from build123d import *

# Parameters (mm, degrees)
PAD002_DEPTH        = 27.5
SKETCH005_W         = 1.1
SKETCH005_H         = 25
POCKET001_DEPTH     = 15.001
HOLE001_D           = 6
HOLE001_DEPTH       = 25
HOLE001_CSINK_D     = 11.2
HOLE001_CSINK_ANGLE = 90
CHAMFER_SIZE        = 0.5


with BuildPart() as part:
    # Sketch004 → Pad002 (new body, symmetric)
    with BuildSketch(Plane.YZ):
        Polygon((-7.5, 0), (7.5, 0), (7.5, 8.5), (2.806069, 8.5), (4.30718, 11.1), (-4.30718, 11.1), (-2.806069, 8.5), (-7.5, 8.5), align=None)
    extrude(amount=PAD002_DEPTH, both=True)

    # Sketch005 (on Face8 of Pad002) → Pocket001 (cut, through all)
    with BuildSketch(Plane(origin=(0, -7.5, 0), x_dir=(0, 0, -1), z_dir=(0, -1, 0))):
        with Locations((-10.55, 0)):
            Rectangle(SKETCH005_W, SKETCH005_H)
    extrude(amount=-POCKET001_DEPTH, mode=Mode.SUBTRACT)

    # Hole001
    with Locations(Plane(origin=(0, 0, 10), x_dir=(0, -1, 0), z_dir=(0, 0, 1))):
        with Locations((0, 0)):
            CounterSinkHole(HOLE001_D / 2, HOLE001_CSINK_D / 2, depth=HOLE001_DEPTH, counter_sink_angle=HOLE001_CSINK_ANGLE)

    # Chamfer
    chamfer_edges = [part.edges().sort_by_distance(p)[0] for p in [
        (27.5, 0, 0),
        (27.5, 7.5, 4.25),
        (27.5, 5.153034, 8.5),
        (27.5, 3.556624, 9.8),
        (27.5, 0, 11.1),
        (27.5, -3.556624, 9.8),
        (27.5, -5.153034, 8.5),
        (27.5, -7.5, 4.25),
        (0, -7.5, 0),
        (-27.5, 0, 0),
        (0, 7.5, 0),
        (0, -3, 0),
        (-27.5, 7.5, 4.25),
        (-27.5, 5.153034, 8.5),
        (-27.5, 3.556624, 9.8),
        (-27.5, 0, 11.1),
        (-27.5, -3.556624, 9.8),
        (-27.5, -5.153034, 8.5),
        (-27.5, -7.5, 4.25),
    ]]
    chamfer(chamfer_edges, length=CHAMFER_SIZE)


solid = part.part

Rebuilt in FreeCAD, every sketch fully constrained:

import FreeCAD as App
import Part
import Sketcher
Q = App.Units.Quantity


def edges_at(feature, points):
    """Names of the edges that pass closest to the given points."""
    edges = feature.Shape.Edges
    near = lambda p: min(range(len(edges)), key=lambda i: edges[i].distToShape(Part.Vertex(*p))[0])
    return sorted({f"Edge{near(p) + 1}" for p in points})

doc = App.newDocument("Part")
body = doc.addObject("PartDesign::Body", "Body")

# Sketch on YZ plane
sketch1 = doc.addObject("Sketcher::SketchObject", "Sketch")
body.addObject(sketch1)
sketch1.AttachmentSupport = (doc.YZ_Plane, [""])
sketch1.MapMode = "FlatFace"
sketch1.addGeometry([
    Part.LineSegment(App.Vector(-7.5, 0, 0), App.Vector(7.5, 0, 0)),  # 0
    Part.LineSegment(App.Vector(7.5, 0, 0), App.Vector(7.5, 8.5, 0)),  # 1
    Part.LineSegment(App.Vector(7.5, 8.5, 0), App.Vector(2.8, 8.5, 0)),  # 2
    Part.LineSegment(App.Vector(2.8, 8.5, 0), App.Vector(4.3, 11.1, 0)),  # 3
    Part.LineSegment(App.Vector(4.3, 11.1, 0), App.Vector(-4.3, 11.1, 0)),  # 4
    Part.LineSegment(App.Vector(-4.3, 11.1, 0), App.Vector(-2.8, 8.5, 0)),  # 5
    Part.LineSegment(App.Vector(-2.8, 8.5, 0), App.Vector(-7.5, 8.5, 0)),  # 6
    Part.LineSegment(App.Vector(-7.5, 8.5, 0), App.Vector(-7.5, 0, 0)),  # 7
], False)
sketch1.addConstraint([
    Sketcher.Constraint("Coincident", 0, 2, 1, 1),
    Sketcher.Constraint("Coincident", 1, 2, 2, 1),
    Sketcher.Constraint("Coincident", 2, 2, 3, 1),
    Sketcher.Constraint("Coincident", 3, 2, 4, 1),
    Sketcher.Constraint("Coincident", 4, 2, 5, 1),
    Sketcher.Constraint("Coincident", 5, 2, 6, 1),
    Sketcher.Constraint("Coincident", 6, 2, 7, 1),
    Sketcher.Constraint("Coincident", 7, 2, 0, 1),
    Sketcher.Constraint("Horizontal", 0),
    Sketcher.Constraint("Vertical", 1),
    Sketcher.Constraint("Horizontal", 2),
    Sketcher.Constraint("Horizontal", 4),
    Sketcher.Constraint("Horizontal", 6),
    Sketcher.Constraint("Vertical", 7),
    Sketcher.Constraint("Symmetric", 0, 2, 7, 2, -1, 1),
    Sketcher.Constraint("Symmetric", 2, 2, 5, 2, -2),
    Sketcher.Constraint("Equal", 3, 5),
    Sketcher.Constraint("DistanceX", 0, 1, 0, 2, Q("15 mm")),
    Sketcher.Constraint("Angle", 3, Q("59.999995 deg")),
    Sketcher.Constraint("DistanceY", 1, 1, 1, 2, Q("8.5 mm")),
    Sketcher.Constraint("DistanceY", -1, 1, 3, 2, Q("11.1 mm")),
    Sketcher.Constraint("DistanceX", 2, 2, 2, 1, Q("4.693931 mm")),
])
pad1 = doc.addObject("PartDesign::Pad", "Pad")
body.addObject(pad1)
pad1.Profile = sketch1
pad1.Length = 55
pad1.Midplane = True

# Sketch on XZ plane
sketch2 = doc.addObject("Sketcher::SketchObject", "Sketch001")
body.addObject(sketch2)
sketch2.AttachmentSupport = (doc.XZ_Plane, [""])
sketch2.MapMode = "FlatFace"
sketch2.AttachmentOffset = App.Placement(App.Vector(0, 0, 7.5), App.Rotation())
sketch2.addGeometry([
    Part.LineSegment(App.Vector(12.5, 11.1, 0), App.Vector(-12.5, 11.1, 0)),
    Part.LineSegment(App.Vector(-12.5, 11.1, 0), App.Vector(-12.5, 10, 0)),
    Part.LineSegment(App.Vector(-12.5, 10, 0), App.Vector(12.5, 10, 0)),
    Part.LineSegment(App.Vector(12.5, 10, 0), App.Vector(12.5, 11.1, 0)),
], False)
sketch2.addConstraint([
    Sketcher.Constraint("Coincident", 0, 2, 1, 1),
    Sketcher.Constraint("Coincident", 1, 2, 2, 1),
    Sketcher.Constraint("Coincident", 2, 2, 3, 1),
    Sketcher.Constraint("Coincident", 3, 2, 0, 1),
    Sketcher.Constraint("Horizontal", 0),
    Sketcher.Constraint("Vertical", 1),
    Sketcher.Constraint("Horizontal", 2),
    Sketcher.Constraint("Vertical", 3),
    Sketcher.Constraint("DistanceX", 0, 2, 0, 1, Q("25 mm")),
    Sketcher.Constraint("DistanceY", 1, 2, 1, 1, Q("1.1 mm")),
    Sketcher.Constraint("DistanceY", -1, 1, 1, 2, Q("10 mm")),
    Sketcher.Constraint("DistanceX", 0, 2, -1, 1, Q("12.5 mm")),
])
pocket1 = doc.addObject("PartDesign::Pocket", "Pocket")
body.addObject(pocket1)
pocket1.Profile = sketch2
pocket1.Type = "ThroughAll"

# Sketch on XY plane
sketch3 = doc.addObject("Sketcher::SketchObject", "Sketch002")
body.addObject(sketch3)
sketch3.AttachmentSupport = (doc.XY_Plane, [""])
sketch3.MapMode = "FlatFace"
sketch3.AttachmentOffset = App.Placement(App.Vector(0, 0, 10), App.Rotation())
sketch3.addGeometry(Part.Circle(App.Vector(0, 0, 0), App.Vector(0, 0, 1), 3), False)
sketch3.addConstraint([
    Sketcher.Constraint("Coincident", 0, 3, -1, 1),
    Sketcher.Constraint("Diameter", 0, Q("6 mm")),
])
doc.recompute()
hole = doc.addObject("PartDesign::Hole", "Hole")
body.addObject(hole)
hole.Profile = sketch3
hole.ThreadType = "None"
hole.Diameter = 6
hole.DepthType = "Dimension"
hole.Depth = 25
hole.DrillPoint = "Flat"
hole.HoleCutType = "Countersink"
hole.HoleCutDiameter = 11.2
hole.HoleCutCountersinkAngle = 90
doc.recompute()

chamfer = doc.addObject("PartDesign::Chamfer", "Chamfer")
body.addObject(chamfer)
chamfer.Base = (hole, edges_at(hole, [
    (27.5, 0, 0),
    (27.5, 7.5, 4.25),
    (27.5, 5.153, 8.5),
    (27.5, 3.557, 9.8),
    (27.5, 0, 11.1),
    (27.5, -3.557, 9.8),
    (27.5, -5.153, 8.5),
    (27.5, -7.5, 4.25),
    (0, -7.5, 0),
    (-27.5, 0, 0),
    (0, 7.5, 0),
    (0, -3, 0),
    (-27.5, 7.5, 4.25),
    (-27.5, 5.153, 8.5),
    (-27.5, 3.557, 9.8),
    (-27.5, 0, 11.1),
    (-27.5, -3.557, 9.8),
    (-27.5, -5.153, 8.5),
    (-27.5, -7.5, 4.25),
]))
chamfer.Size = 0.5

doc.recompute()
